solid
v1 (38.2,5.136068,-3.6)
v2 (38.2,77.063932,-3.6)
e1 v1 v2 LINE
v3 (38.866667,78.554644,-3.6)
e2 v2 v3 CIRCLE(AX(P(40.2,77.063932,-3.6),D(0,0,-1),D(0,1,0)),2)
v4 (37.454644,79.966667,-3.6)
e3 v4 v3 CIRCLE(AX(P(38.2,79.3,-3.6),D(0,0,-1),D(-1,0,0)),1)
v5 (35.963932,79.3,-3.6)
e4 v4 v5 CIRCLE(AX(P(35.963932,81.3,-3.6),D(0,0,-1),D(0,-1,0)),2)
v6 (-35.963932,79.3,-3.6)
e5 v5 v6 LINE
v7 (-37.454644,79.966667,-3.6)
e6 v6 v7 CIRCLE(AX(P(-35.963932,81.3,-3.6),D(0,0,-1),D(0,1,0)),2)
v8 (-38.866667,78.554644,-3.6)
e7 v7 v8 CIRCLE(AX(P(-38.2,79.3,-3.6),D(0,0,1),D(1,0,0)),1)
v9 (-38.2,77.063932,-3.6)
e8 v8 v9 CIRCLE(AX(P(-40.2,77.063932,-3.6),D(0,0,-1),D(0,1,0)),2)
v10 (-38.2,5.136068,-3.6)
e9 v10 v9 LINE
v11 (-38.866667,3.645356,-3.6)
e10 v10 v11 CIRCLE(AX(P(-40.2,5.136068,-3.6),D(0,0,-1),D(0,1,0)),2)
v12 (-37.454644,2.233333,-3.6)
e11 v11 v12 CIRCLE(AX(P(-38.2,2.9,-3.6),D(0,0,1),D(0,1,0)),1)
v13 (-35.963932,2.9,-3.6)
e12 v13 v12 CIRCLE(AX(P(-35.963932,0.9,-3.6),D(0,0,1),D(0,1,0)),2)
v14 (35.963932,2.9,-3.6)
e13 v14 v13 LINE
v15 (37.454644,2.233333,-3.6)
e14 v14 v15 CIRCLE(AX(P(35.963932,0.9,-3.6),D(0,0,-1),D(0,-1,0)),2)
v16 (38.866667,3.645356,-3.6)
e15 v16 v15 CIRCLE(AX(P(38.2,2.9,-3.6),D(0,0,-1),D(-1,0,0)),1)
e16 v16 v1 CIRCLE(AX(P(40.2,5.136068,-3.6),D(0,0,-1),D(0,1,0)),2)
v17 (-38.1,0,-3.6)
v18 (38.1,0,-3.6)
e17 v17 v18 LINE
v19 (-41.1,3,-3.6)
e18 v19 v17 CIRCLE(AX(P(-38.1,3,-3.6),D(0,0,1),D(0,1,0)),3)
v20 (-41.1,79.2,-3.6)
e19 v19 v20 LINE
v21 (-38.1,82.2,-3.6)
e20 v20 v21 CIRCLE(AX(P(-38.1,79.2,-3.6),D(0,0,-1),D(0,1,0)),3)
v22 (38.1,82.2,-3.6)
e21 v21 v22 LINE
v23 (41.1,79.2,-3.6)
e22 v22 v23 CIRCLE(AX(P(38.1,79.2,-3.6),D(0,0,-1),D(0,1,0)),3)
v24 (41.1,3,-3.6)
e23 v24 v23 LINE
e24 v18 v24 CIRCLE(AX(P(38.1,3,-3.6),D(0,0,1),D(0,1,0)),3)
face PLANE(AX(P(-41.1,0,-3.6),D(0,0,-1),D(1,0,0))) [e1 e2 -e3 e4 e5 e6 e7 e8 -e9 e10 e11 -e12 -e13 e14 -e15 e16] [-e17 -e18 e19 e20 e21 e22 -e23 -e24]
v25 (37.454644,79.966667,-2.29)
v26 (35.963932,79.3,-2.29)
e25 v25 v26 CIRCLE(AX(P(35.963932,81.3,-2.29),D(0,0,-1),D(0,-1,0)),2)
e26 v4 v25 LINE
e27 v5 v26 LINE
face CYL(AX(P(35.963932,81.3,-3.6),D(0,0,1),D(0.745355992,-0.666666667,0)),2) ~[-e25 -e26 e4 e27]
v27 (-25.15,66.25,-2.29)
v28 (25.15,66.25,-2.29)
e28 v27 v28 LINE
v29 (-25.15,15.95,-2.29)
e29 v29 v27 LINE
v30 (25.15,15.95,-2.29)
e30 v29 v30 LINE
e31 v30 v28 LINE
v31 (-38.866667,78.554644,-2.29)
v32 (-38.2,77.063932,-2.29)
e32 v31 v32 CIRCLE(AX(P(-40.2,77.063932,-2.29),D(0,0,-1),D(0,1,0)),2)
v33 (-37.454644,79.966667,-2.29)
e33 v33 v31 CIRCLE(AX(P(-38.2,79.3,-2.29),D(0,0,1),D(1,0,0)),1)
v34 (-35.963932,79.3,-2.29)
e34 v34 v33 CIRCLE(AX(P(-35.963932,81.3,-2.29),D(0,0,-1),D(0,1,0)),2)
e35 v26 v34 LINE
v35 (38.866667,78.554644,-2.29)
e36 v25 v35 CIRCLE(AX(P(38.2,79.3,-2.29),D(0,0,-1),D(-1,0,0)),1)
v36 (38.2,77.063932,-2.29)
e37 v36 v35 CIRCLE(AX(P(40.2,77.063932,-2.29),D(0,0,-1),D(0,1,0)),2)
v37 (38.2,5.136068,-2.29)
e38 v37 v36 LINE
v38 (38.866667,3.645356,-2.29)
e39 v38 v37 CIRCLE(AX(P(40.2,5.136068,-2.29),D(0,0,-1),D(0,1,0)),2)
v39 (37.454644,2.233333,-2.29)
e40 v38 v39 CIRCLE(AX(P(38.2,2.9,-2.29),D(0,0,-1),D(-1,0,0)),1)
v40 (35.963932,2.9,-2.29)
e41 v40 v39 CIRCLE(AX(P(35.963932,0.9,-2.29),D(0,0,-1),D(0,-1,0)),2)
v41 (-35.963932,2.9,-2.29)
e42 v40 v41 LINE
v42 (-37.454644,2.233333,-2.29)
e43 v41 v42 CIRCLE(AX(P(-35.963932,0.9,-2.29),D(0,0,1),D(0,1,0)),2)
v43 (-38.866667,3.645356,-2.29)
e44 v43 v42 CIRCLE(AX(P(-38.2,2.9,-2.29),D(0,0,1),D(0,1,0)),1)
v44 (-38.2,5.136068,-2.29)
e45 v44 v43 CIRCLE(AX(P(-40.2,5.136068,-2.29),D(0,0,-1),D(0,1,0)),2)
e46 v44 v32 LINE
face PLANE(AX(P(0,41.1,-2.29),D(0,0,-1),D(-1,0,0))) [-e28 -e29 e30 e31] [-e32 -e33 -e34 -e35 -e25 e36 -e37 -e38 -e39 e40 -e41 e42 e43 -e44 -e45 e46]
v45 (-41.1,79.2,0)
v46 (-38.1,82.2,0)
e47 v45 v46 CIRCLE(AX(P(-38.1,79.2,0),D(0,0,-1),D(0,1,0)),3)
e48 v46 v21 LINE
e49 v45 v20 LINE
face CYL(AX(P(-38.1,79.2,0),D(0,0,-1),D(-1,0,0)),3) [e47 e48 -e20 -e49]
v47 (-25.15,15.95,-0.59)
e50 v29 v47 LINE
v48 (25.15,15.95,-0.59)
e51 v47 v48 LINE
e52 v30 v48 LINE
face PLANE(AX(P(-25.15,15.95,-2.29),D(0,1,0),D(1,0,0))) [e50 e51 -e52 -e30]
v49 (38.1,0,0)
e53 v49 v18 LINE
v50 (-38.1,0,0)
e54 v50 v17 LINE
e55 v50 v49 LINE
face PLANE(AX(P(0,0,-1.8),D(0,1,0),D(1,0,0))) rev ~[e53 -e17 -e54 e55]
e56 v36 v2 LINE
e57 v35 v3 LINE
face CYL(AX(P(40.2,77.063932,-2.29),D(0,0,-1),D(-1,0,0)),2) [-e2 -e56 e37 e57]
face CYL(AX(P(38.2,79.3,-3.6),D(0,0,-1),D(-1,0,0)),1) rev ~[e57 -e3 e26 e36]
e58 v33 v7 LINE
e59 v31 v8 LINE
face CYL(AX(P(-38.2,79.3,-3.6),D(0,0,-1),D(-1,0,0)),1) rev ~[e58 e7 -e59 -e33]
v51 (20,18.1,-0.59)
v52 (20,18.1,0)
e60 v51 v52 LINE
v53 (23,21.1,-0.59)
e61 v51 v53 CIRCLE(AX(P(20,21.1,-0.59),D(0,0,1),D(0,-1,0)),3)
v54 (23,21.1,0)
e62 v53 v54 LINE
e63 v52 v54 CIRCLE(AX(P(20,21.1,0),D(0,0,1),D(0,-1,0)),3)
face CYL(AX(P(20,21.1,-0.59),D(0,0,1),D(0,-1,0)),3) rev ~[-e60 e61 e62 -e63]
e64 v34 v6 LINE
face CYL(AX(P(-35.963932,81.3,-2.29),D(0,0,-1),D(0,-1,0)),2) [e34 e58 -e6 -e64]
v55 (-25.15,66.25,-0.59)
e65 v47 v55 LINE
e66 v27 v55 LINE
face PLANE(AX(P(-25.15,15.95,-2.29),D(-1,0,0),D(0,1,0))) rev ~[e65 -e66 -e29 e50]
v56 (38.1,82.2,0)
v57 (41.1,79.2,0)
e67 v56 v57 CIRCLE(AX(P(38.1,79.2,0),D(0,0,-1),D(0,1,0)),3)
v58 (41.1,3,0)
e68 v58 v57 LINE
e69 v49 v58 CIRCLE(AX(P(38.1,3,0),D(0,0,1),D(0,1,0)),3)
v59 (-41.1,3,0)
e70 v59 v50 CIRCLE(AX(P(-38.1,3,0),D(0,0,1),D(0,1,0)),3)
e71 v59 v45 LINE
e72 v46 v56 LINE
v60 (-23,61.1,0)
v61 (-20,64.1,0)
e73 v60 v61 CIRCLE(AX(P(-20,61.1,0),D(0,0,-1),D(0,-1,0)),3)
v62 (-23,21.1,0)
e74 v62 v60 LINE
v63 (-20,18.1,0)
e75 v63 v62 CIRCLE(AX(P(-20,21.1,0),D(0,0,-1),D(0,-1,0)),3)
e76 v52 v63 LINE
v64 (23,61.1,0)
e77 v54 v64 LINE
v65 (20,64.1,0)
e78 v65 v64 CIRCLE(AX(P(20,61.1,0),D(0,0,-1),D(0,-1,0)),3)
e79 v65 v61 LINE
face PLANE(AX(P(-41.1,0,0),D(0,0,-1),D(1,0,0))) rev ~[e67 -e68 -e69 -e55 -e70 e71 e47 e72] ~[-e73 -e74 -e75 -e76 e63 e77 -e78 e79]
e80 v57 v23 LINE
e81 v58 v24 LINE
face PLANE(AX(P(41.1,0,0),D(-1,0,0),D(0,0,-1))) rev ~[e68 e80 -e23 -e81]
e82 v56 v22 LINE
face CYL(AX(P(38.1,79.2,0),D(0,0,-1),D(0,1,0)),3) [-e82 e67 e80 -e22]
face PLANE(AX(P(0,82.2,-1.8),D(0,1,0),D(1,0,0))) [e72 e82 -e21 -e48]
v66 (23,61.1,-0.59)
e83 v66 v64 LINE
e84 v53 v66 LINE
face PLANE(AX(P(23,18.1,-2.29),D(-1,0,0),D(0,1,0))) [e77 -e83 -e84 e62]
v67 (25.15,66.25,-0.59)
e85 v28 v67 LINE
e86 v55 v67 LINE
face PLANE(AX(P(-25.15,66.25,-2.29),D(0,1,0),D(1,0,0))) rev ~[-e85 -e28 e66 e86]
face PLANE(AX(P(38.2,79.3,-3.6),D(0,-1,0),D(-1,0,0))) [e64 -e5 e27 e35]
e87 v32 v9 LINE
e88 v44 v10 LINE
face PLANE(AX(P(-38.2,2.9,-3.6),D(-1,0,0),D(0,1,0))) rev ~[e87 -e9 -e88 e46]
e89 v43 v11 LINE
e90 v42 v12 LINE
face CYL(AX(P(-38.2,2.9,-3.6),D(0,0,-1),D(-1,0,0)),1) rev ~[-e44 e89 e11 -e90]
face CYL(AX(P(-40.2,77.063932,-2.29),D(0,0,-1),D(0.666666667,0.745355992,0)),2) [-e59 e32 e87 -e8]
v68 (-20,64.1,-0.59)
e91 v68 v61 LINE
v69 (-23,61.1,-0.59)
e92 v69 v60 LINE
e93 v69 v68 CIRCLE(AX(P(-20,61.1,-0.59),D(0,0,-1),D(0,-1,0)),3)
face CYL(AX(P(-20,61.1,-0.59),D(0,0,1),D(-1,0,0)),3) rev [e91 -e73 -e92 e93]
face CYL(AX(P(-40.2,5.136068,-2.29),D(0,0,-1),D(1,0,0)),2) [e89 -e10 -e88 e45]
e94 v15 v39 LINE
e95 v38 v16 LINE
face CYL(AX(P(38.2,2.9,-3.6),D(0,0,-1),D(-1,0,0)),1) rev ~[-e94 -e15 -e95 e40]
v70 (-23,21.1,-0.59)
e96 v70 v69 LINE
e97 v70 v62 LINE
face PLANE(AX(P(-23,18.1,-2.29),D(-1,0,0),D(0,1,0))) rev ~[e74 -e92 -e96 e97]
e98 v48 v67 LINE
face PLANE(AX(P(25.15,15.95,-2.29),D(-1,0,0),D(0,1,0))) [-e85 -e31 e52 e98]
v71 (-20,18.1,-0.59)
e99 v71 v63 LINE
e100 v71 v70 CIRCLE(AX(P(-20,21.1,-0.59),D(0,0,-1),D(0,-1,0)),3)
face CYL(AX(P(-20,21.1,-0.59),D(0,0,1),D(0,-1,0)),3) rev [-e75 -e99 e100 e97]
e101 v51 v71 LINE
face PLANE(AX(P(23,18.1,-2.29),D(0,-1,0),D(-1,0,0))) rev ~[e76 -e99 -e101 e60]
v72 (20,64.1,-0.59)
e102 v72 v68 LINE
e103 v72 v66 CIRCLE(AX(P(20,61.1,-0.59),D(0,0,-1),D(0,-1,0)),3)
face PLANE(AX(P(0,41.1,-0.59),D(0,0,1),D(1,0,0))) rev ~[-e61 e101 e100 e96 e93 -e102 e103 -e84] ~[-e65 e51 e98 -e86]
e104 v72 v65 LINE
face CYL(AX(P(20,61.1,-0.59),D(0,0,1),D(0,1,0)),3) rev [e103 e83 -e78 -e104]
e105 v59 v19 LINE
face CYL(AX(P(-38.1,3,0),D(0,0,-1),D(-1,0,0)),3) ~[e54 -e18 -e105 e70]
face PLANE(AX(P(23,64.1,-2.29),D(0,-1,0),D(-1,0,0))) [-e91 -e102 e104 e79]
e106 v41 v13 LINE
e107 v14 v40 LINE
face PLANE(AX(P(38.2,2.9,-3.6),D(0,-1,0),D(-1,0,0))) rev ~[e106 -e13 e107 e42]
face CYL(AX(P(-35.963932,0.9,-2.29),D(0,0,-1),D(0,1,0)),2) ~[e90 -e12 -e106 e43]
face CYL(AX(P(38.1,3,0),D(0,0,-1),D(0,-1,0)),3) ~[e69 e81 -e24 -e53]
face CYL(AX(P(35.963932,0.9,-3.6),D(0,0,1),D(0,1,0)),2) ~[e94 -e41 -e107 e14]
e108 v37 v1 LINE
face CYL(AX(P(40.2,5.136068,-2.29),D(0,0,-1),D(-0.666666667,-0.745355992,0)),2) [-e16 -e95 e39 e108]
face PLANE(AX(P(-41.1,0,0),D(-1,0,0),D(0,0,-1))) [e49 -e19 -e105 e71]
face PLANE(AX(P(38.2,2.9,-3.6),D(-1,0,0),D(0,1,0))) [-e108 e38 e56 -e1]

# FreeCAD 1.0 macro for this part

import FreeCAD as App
import Part
import Sketcher

V = App.Vector


def edges_at(feature, points):
    """Names of the edges that pass closest to the given points."""
    edges = feature.Shape.Edges
    near = lambda p: min(range(len(edges)), key=lambda i: edges[i].distToShape(Part.Vertex(*p))[0])
    return sorted({f"Edge{near(p) + 1}" for p in points})

doc = App.newDocument("Part")
params = doc.addObject("Spreadsheet::Sheet", "Params")
for row, (alias, value) in enumerate([
    ("sketch1_width", "82.2 mm"),
    ("sketch1_height", "3.6 mm"),
    ("pad1_length", "82.2 mm"),
    ("sketch2_width", "76.4 mm"),
    ("pocket1_length", "1.31 mm"),
    ("sketch3_diameter", "2 mm"),
    ("pocket2_length", "1.31 mm"),
    ("sketch4_width", "46 mm"),
    ("sketch5_width", "50.3 mm"),
    ("pocket4_length", "1.7 mm"),
    ("fillet_radius", "3 mm"),
    ("fillet2_radius", "2 mm"),
], start=1):
    params.set(f"A{row}", alias)
    params.set(f"B{row}", "=" + value)
    params.setAlias(f"B{row}", alias)

body = doc.addObject("PartDesign::Body", "Body")

# Sketch on XZ plane
sketch1 = body.newObject("Sketcher::SketchObject", "Sketch")
sketch1.AttachmentSupport = (doc.getObject("XZ_Plane"), [""])
sketch1.MapMode = "FlatFace"
sketch1.addGeometry([
    Part.LineSegment(V(-41.1, -3.6, 0), V(-41.1, 0, 0)),
    Part.LineSegment(V(-41.1, 0, 0), V(41.1, 0, 0)),
    Part.LineSegment(V(41.1, 0, 0), V(41.1, -3.6, 0)),
    Part.LineSegment(V(41.1, -3.6, 0), V(-41.1, -3.6, 0)),
], False)
sketch1.addConstraint([
    Sketcher.Constraint("Coincident", 0, 2, 1, 1),
    Sketcher.Constraint("Coincident", 1, 2, 2, 1),
    Sketcher.Constraint("Coincident", 2, 2, 3, 1),
    Sketcher.Constraint("Coincident", 3, 2, 0, 1),
    Sketcher.Constraint("Vertical", 0),
    Sketcher.Constraint("Horizontal", 1),
    Sketcher.Constraint("Vertical", 2),
    Sketcher.Constraint("Horizontal", 3),
    Sketcher.Constraint("Symmetric", 0, 2, 1, 2, -1, 1),
    Sketcher.Constraint("DistanceX", 1, 1, 1, 2, 82.2),
    Sketcher.Constraint("DistanceY", 0, 1, 0, 2, 3.6),
])
sketch1.setExpression("Constraints[9]", "Params.sketch1_width")
sketch1.setExpression("Constraints[10]", "Params.sketch1_height")
pad1 = body.newObject("PartDesign::Pad", "Pad")
pad1.Profile = sketch1
pad1.setExpression("Length", "Params.pad1_length")
pad1.Reversed = True

# Sketch on XY plane
sketch2 = body.newObject("Sketcher::SketchObject", "Sketch001")
sketch2.AttachmentSupport = (doc.getObject("XY_Plane"), [""])
sketch2.MapMode = "FlatFace"
sketch2.AttachmentOffset = App.Placement(V(0, 0, -3.6), App.Rotation())
sketch2.addGeometry([
    Part.LineSegment(V(38, 79, 0), V(38, 3, 0)),
    Part.LineSegment(V(38, 3, 0), V(-38, 3, 0)),
    Part.LineSegment(V(-38, 3, 0), V(-38, 79, 0)),
    Part.LineSegment(V(-38, 79, 0), V(38, 79, 0)),
], False)
sketch2.addConstraint([
    Sketcher.Constraint("Coincident", 0, 2, 1, 1),
    Sketcher.Constraint("Coincident", 1, 2, 2, 1),
    Sketcher.Constraint("Coincident", 2, 2, 3, 1),
    Sketcher.Constraint("Coincident", 3, 2, 0, 1),
    Sketcher.Constraint("Vertical", 0),
    Sketcher.Constraint("Horizontal", 1),
    Sketcher.Constraint("Vertical", 2),
    Sketcher.Constraint("Horizontal", 3),
    Sketcher.Constraint("Equal", 3, 0),
    Sketcher.Constraint("DistanceX", 1, 2, 1, 1, 76.4),
    Sketcher.Constraint("DistanceX", -1, 1, 0, 2, 38.2),
    Sketcher.Constraint("DistanceY", -1, 1, 0, 2, 2.9),
])
sketch2.setExpression("Constraints[9]", "Params.sketch2_width")
pocket1 = body.newObject("PartDesign::Pocket", "Pocket")
pocket1.Profile = sketch2
pocket1.setExpression("Length", "Params.pocket1_length")
pocket1.Reversed = True

# Sketch on XY plane
sketch3 = body.newObject("Sketcher::SketchObject", "Sketch002")
sketch3.AttachmentSupport = (doc.getObject("XY_Plane"), [""])
sketch3.MapMode = "FlatFace"
sketch3.AttachmentOffset = App.Placement(V(0, 0, -3.6), App.Rotation())
sketch3.addGeometry([
    Part.Circle(V(-38.2, 2.9, 0), V(0, 0, 1), 1),
    Part.Circle(V(-38.2, 79.3, 0), V(0, 0, 1), 1),
    Part.Circle(V(38.2, 2.9, 0), V(0, 0, 1), 1),
    Part.Circle(V(38.2, 79.3, 0), V(0, 0, 1), 1),
], False)
sketch3.addConstraint([
    Sketcher.Constraint("Equal", 0, 1),
    Sketcher.Constraint("Equal", 1, 2),
    Sketcher.Constraint("Equal", 2, 3),
    Sketcher.Constraint("Symmetric", 0, 3, 2, 3, -2),
    Sketcher.Constraint("Symmetric", 1, 3, 3, 3, -2),
    Sketcher.Constraint("Vertical", 0, 3, 1, 3),
    Sketcher.Constraint("Diameter", 0, 2.0),
    Sketcher.Constraint("DistanceX", 0, 3, -1, 1, 38.2),
    Sketcher.Constraint("DistanceY", -1, 1, 0, 3, 2.9),
    Sketcher.Constraint("DistanceY", -1, 1, 1, 3, 79.3),
])
sketch3.setExpression("Constraints[6]", "Params.sketch3_diameter")
pocket2 = body.newObject("PartDesign::Pocket", "Pocket001")
pocket2.Profile = sketch3
pocket2.setExpression("Length", "Params.pocket2_length")
pocket2.Reversed = True

# Sketch on XY plane
sketch4 = body.newObject("Sketcher::SketchObject", "Sketch003")
sketch4.AttachmentSupport = (doc.getObject("XY_Plane"), [""])
sketch4.MapMode = "FlatFace"
sketch4.AttachmentOffset = App.Placement(V(0, 0, -2.29), App.Rotation())
sketch4.addGeometry([
    Part.LineSegment(V(23, 64, 0), V(23, 18, 0)),
    Part.LineSegment(V(23, 18, 0), V(-23, 18, 0)),
    Part.LineSegment(V(-23, 18, 0), V(-23, 64, 0)),
    Part.LineSegment(V(-23, 64, 0), V(23, 64, 0)),
], False)
sketch4.addConstraint([
    Sketcher.Constraint("Coincident", 0, 2, 1, 1),
    Sketcher.Constraint("Coincident", 1, 2, 2, 1),
    Sketcher.Constraint("Coincident", 2, 2, 3, 1),
    Sketcher.Constraint("Coincident", 3, 2, 0, 1),
    Sketcher.Constraint("Vertical", 0),
    Sketcher.Constraint("Horizontal", 1),
    Sketcher.Constraint("Vertical", 2),
    Sketcher.Constraint("Horizontal", 3),
    Sketcher.Constraint("Equal", 3, 0),
    Sketcher.Constraint("DistanceX", 1, 2, 1, 1, 46.0),
    Sketcher.Constraint("DistanceX", -1, 1, 0, 2, 23.0),
    Sketcher.Constraint("DistanceY", -1, 1, 0, 2, 18.1),
])
sketch4.setExpression("Constraints[9]", "Params.sketch4_width")
pocket3 = body.newObject("PartDesign::Pocket", "Pocket002")
pocket3.Profile = sketch4
pocket3.Type = "ThroughAll"
pocket3.Reversed = True

# Sketch on XY plane
sketch5 = body.newObject("Sketcher::SketchObject", "Sketch004")
sketch5.AttachmentSupport = (doc.getObject("XY_Plane"), [""])
sketch5.MapMode = "FlatFace"
sketch5.AttachmentOffset = App.Placement(V(0, 0, -2.29), App.Rotation())
sketch5.addGeometry([
    Part.LineSegment(V(-25, 66, 0), V(-25, 16, 0)),
    Part.LineSegment(V(-25, 16, 0), V(25, 16, 0)),
    Part.LineSegment(V(25, 16, 0), V(25, 66, 0)),
    Part.LineSegment(V(25, 66, 0), V(-25, 66, 0)),
], False)
sketch5.addConstraint([
    Sketcher.Constraint("Coincident", 0, 2, 1, 1),
    Sketcher.Constraint("Coincident", 1, 2, 2, 1),
    Sketcher.Constraint("Coincident", 2, 2, 3, 1),
    Sketcher.Constraint("Coincident", 3, 2, 0, 1),
    Sketcher.Constraint("Vertical", 0),
    Sketcher.Constraint("Horizontal", 1),
    Sketcher.Constraint("Vertical", 2),
    Sketcher.Constraint("Horizontal", 3),
    Sketcher.Constraint("Equal", 3, 0),
    Sketcher.Constraint("DistanceX", 1, 1, 1, 2, 50.3),
    Sketcher.Constraint("DistanceX", 0, 2, -1, 1, 25.15),
    Sketcher.Constraint("DistanceY", -1, 1, 0, 2, 15.95),
])
sketch5.setExpression("Constraints[9]", "Params.sketch5_width")
pocket4 = body.newObject("PartDesign::Pocket", "Pocket003")
pocket4.Profile = sketch5
pocket4.setExpression("Length", "Params.pocket4_length")
pocket4.Reversed = True
doc.recompute()

fillet = body.newObject("PartDesign::Fillet", "Fillet")
fillet.Base = (pocket4, edges_at(pocket4, [
    (-41.1, 82.2, -1.8),
    (41.1, 82.2, -1.8),
    (-41.1, 0, -1.8),
    (41.1, 0, -1.8),
    (23, 18.1, -0.295),
    (23, 64.1, -0.295),
    (-23, 64.1, -0.295),
    (-23, 18.1, -0.295),
]))
fillet.setExpression("Radius", "Params.fillet_radius")
doc.recompute()

fillet2 = body.newObject("PartDesign::Fillet", "Fillet001")
fillet2.Base = (fillet, edges_at(fillet, [
    (-37.2, 79.3, -2.945),
    (-38.2, 78.3, -2.945),
    (38.2, 3.9, -2.945),
    (37.2, 2.9, -2.945),
    (38.2, 78.3, -2.945),
    (37.2, 79.3, -2.945),
    (-38.2, 3.9, -2.945),
    (-37.2, 2.9, -2.945),
]))
fillet2.setExpression("Radius", "Params.fillet2_radius")

doc.recompute()
